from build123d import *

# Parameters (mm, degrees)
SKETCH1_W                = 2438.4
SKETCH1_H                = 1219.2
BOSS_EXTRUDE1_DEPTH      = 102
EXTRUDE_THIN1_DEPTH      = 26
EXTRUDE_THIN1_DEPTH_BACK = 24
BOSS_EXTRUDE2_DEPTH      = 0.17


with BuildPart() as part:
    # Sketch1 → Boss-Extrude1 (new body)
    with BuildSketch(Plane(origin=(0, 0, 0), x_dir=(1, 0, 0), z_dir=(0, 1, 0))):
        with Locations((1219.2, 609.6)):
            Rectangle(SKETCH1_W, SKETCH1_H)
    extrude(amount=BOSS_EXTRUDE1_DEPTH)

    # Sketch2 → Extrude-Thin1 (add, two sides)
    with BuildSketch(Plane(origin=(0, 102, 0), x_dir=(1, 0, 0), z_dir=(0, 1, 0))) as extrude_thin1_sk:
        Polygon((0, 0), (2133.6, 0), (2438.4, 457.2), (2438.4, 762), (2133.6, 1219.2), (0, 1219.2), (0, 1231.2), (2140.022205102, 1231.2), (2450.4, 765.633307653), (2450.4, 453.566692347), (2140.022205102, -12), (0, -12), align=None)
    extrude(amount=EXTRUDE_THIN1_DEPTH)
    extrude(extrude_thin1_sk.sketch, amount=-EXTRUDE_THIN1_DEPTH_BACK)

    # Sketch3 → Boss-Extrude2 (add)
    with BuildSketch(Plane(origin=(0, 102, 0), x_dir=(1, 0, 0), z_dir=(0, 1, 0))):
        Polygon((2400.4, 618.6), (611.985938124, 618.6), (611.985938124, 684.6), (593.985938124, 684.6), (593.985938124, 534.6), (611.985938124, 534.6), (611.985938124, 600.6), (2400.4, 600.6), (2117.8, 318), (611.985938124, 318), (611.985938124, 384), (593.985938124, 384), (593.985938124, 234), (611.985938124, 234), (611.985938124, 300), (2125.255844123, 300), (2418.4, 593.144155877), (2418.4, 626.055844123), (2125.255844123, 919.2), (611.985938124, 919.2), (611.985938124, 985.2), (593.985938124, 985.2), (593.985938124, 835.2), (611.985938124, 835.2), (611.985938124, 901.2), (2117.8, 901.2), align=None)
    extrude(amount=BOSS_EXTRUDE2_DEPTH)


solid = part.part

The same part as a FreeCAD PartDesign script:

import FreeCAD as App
import Part
import Sketcher
from FreeCAD import Vector
Q = App.Units.Quantity

doc = App.newDocument("Part")
params = doc.addObject("Spreadsheet::Sheet", "Params")
for row, (alias, value) in enumerate([
    ("sketch1_width", "2438.4 mm"),
    ("sketch1_height", "1219.2 mm"),
    ("pad1_length", "102 mm"),
    ("sketch2_height", "12 mm"),
    ("sketch2_width", "2133.6 mm"),
    ("sketch2_height2", "304.8 mm"),
    ("pad2_length", "26 mm"),
    ("pad2_length2", "24 mm"),
    ("sketch3_width", "18 mm"),
    ("sketch3_height", "66 mm"),
    ("sketch3_height2", "150 mm"),
    ("pad3_length", "0.17 mm"),
], start=1):
    params.set(f"A{row}", alias)
    params.set(f"B{row}", "=" + value)
    params.setAlias(f"B{row}", alias)

body = doc.addObject("PartDesign::Body", "Body")

# Sketch on XZ plane
sketch1 = doc.addObject("Sketcher::SketchObject", "Sketch")
body.addObject(sketch1)
sketch1.AttachmentSupport = (doc.XZ_Plane, [""])
sketch1.MapMode = "FlatFace"
sketch1.addGeometry([
    Part.LineSegment(Vector(0, -1219, 0), Vector(0, 0, 0)),
    Part.LineSegment(Vector(0, 0, 0), Vector(2438, 0, 0)),
    Part.LineSegment(Vector(2438, 0, 0), Vector(2438, -1219, 0)),
    Part.LineSegment(Vector(2438, -1219, 0), Vector(0, -1219, 0)),
], False)
sketch1.addConstraint([
    Sketcher.Constraint("Coincident", 0, 2, 1, 1),
    Sketcher.Constraint("Coincident", 1, 2, 2, 1),
    Sketcher.Constraint("Coincident", 2, 2, 3, 1),
    Sketcher.Constraint("Coincident", 3, 2, 0, 1),
    Sketcher.Constraint("Vertical", 0),
    Sketcher.Constraint("Horizontal", 1),
    Sketcher.Constraint("Vertical", 2),
    Sketcher.Constraint("Horizontal", 3),
    Sketcher.Constraint("Coincident", 0, 2, -1, 1),
    Sketcher.Constraint("DistanceX", 1, 1, 1, 2, Q("2438.4 mm")),
    Sketcher.Constraint("DistanceY", 0, 1, 0, 2, Q("1219.2 mm")),
])
sketch1.setExpression("Constraints[9]", "Params.sketch1_width")
sketch1.setExpression("Constraints[10]", "Params.sketch1_height")
pad1 = doc.addObject("PartDesign::Pad", "Pad")
body.addObject(pad1)
pad1.Profile = sketch1
pad1.setExpression("Length", "Params.pad1_length")
pad1.Reversed = True

# Sketch on XZ plane
sketch2 = doc.addObject("Sketcher::SketchObject", "Sketch001")
body.addObject(sketch2)
sketch2.AttachmentSupport = (doc.XZ_Plane, [""])
sketch2.MapMode = "FlatFace"
sketch2.AttachmentOffset = App.Placement(Vector(0, 0, -102), App.Rotation())
sketch2.addGeometry([
    Part.LineSegment(Vector(2134, 0, 0), Vector(0, 0, 0)),  # 0
    Part.LineSegment(Vector(0, 0, 0), Vector(0, 12, 0)),  # 1
    Part.LineSegment(Vector(0, 12, 0), Vector(2140, 12, 0)),  # 2
    Part.LineSegment(Vector(2140, 12, 0), Vector(2450, -454, 0)),  # 3
    Part.LineSegment(Vector(2450, -454, 0), Vector(2450, -766, 0)),  # 4
    Part.LineSegment(Vector(2450, -766, 0), Vector(2140, -1231, 0)),  # 5
    Part.LineSegment(Vector(2140, -1231, 0), Vector(0, -1231, 0)),  # 6
    Part.LineSegment(Vector(0, -1231, 0), Vector(0, -1219, 0)),  # 7
    Part.LineSegment(Vector(0, -1219, 0), Vector(2134, -1219, 0)),  # 8
    Part.LineSegment(Vector(2134, -1219, 0), Vector(2438, -762, 0)),  # 9
    Part.LineSegment(Vector(2438, -762, 0), Vector(2438, -457, 0)),  # 10
    Part.LineSegment(Vector(2438, -457, 0), Vector(2134, 0, 0)),  # 11
], False)
sketch2.addConstraint([
    Sketcher.Constraint("Coincident", 0, 2, 1, 1),
    Sketcher.Constraint("Coincident", 1, 2, 2, 1),
    Sketcher.Constraint("Coincident", 2, 2, 3, 1),
    Sketcher.Constraint("Coincident", 3, 2, 4, 1),
    Sketcher.Constraint("Coincident", 4, 2, 5, 1),
    Sketcher.Constraint("Coincident", 5, 2, 6, 1),
    Sketcher.Constraint("Coincident", 6, 2, 7, 1),
    Sketcher.Constraint("Coincident", 7, 2, 8, 1),
    Sketcher.Constraint("Coincident", 8, 2, 9, 1),
    Sketcher.Constraint("Coincident", 9, 2, 10, 1),
    Sketcher.Constraint("Coincident", 10, 2, 11, 1),
    Sketcher.Constraint("Coincident", 11, 2, 0, 1),
    Sketcher.Constraint("Horizontal", 0),
    Sketcher.Constraint("Vertical", 1),
    Sketcher.Constraint("Horizontal", 2),
    Sketcher.Constraint("Vertical", 4),
    Sketcher.Constraint("Horizontal", 6),
    Sketcher.Constraint("Vertical", 7),
    Sketcher.Constraint("Horizontal", 8),
    Sketcher.Constraint("Vertical", 10),
    Sketcher.Constraint("Coincident", 0, 2, -1, 1),
    Sketcher.Constraint("PointOnObject", 6, 2, -2),
    Sketcher.Constraint("Parallel", 5, 9),
    Sketcher.Constraint("Parallel", 3, 11),
    Sketcher.Constraint("Vertical", 2, 2, 5, 2),
    Sketcher.Constraint("Vertical", 8, 2, 11, 2),
    Sketcher.Constraint("Equal", 1, 7),
    Sketcher.Constraint("Equal", 3, 5),
    Sketcher.Constraint("DistanceY", 1, 1, 1, 2, Q("12 mm")),
    Sketcher.Constraint("DistanceX", 0, 2, 0, 1, Q("2133.6 mm")),
    Sketcher.Constraint("DistanceY", 10, 1, 10, 2, Q("304.8 mm")),
    Sketcher.Constraint("DistanceY", 9, 2, -1, 1, Q("762 mm")),
    Sketcher.Constraint("DistanceX", 9, 2, 4, 2, Q("12 mm")),
    Sketcher.Constraint("DistanceX", -1, 1, 3, 2, Q("2450.4 mm")),
    Sketcher.Constraint("DistanceX", 2, 1, 2, 2, Q("2140.022205 mm")),
])
sketch2.setExpression("Constraints[28]", "Params.sketch2_height")
sketch2.setExpression("Constraints[29]", "Params.sketch2_width")
sketch2.setExpression("Constraints[30]", "Params.sketch2_height2")
pad2 = doc.addObject("PartDesign::Pad", "Pad001")
body.addObject(pad2)
pad2.Profile = sketch2
pad2.Type = "TwoLengths"
pad2.setExpression("Length", "Params.pad2_length")
pad2.setExpression("Length2", "Params.pad2_length2")
pad2.Reversed = True

# Sketch on XZ plane
sketch3 = doc.addObject("Sketcher::SketchObject", "Sketch002")
body.addObject(sketch3)
sketch3.AttachmentSupport = (doc.XZ_Plane, [""])
sketch3.MapMode = "FlatFace"
sketch3.AttachmentOffset = App.Placement(Vector(0, 0, -102), App.Rotation())
sketch3.addGeometry([
    Part.LineSegment(Vector(2400, -619, 0), Vector(612, -619, 0)),  # 0
    Part.LineSegment(Vector(612, -619, 0), Vector(612, -685, 0)),  # 1
    Part.LineSegment(Vector(612, -685, 0), Vector(594, -685, 0)),  # 2
    Part.LineSegment(Vector(594, -685, 0), Vector(594, -535, 0)),  # 3
    Part.LineSegment(Vector(594, -535, 0), Vector(612, -535, 0)),  # 4
    Part.LineSegment(Vector(612, -535, 0), Vector(612, -601, 0)),  # 5
    Part.LineSegment(Vector(612, -601, 0), Vector(2400, -601, 0)),  # 6
    Part.LineSegment(Vector(2400, -601, 0), Vector(2118, -318, 0)),  # 7
    Part.LineSegment(Vector(2118, -318, 0), Vector(612, -318, 0)),  # 8
    Part.LineSegment(Vector(612, -318, 0), Vector(612, -384, 0)),  # 9
    Part.LineSegment(Vector(612, -384, 0), Vector(594, -384, 0)),  # 10
    Part.LineSegment(Vector(594, -384, 0), Vector(594, -234, 0)),  # 11
    Part.LineSegment(Vector(594, -234, 0), Vector(612, -234, 0)),  # 12
    Part.LineSegment(Vector(612, -234, 0), Vector(612, -300, 0)),  # 13
    Part.LineSegment(Vector(612, -300, 0), Vector(2125, -300, 0)),  # 14
    Part.LineSegment(Vector(2125, -300, 0), Vector(2418, -593, 0)),  # 15
    Part.LineSegment(Vector(2418, -593, 0), Vector(2418, -626, 0)),  # 16
    Part.LineSegment(Vector(2418, -626, 0), Vector(2125, -919, 0)),  # 17
    Part.LineSegment(Vector(2125, -919, 0), Vector(612, -919, 0)),  # 18
    Part.LineSegment(Vector(612, -919, 0), Vector(612, -985, 0)),  # 19
    Part.LineSegment(Vector(612, -985, 0), Vector(594, -985, 0)),  # 20
    Part.LineSegment(Vector(594, -985, 0), Vector(594, -835, 0)),  # 21
    Part.LineSegment(Vector(594, -835, 0), Vector(612, -835, 0)),  # 22
    Part.LineSegment(Vector(612, -835, 0), Vector(612, -901, 0)),  # 23
    Part.LineSegment(Vector(612, -901, 0), Vector(2118, -901, 0)),  # 24
    Part.LineSegment(Vector(2118, -901, 0), Vector(2400, -619, 0)),  # 25
], False)
sketch3.addConstraint([
    Sketcher.Constraint("Coincident", 0, 2, 1, 1),
    Sketcher.Constraint("Coincident", 1, 2, 2, 1),
    Sketcher.Constraint("Coincident", 2, 2, 3, 1),
    Sketcher.Constraint("Coincident", 3, 2, 4, 1),
    Sketcher.Constraint("Coincident", 4, 2, 5, 1),
    Sketcher.Constraint("Coincident", 5, 2, 6, 1),
    Sketcher.Constraint("Coincident", 6, 2, 7, 1),
    Sketcher.Constraint("Coincident", 7, 2, 8, 1),
    Sketcher.Constraint("Coincident", 8, 2, 9, 1),
    Sketcher.Constraint("Coincident", 9, 2, 10, 1),
    Sketcher.Constraint("Coincident", 10, 2, 11, 1),
    Sketcher.Constraint("Coincident", 11, 2, 12, 1),
    Sketcher.Constraint("Coincident", 12, 2, 13, 1),
    Sketcher.Constraint("Coincident", 13, 2, 14, 1),
    Sketcher.Constraint("Coincident", 14, 2, 15, 1),
    Sketcher.Constraint("Coincident", 15, 2, 16, 1),
    Sketcher.Constraint("Coincident", 16, 2, 17, 1),
    Sketcher.Constraint("Coincident", 17, 2, 18, 1),
    Sketcher.Constraint("Coincident", 18, 2, 19, 1),
    Sketcher.Constraint("Coincident", 19, 2, 20, 1),
    Sketcher.Constraint("Coincident", 20, 2, 21, 1),
    Sketcher.Constraint("Coincident", 21, 2, 22, 1),
    Sketcher.Constraint("Coincident", 22, 2, 23, 1),
    Sketcher.Constraint("Coincident", 23, 2, 24, 1),
    Sketcher.Constraint("Coincident", 24, 2, 25, 1),
    Sketcher.Constraint("Coincident", 25, 2, 0, 1),
    Sketcher.Constraint("Horizontal", 0),
    Sketcher.Constraint("Vertical", 1),
    Sketcher.Constraint("Horizontal", 2),
    Sketcher.Constraint("Vertical", 3),
    Sketcher.Constraint("Horizontal", 4),
    Sketcher.Constraint("Vertical", 5),
    Sketcher.Constraint("Horizontal", 6),
    Sketcher.Constraint("Horizontal", 8),
    Sketcher.Constraint("Vertical", 9),
    Sketcher.Constraint("Horizontal", 10),
    Sketcher.Constraint("Vertical", 11),
    Sketcher.Constraint("Horizontal", 12),
    Sketcher.Constraint("Vertical", 13),
    Sketcher.Constraint("Horizontal", 14),
    Sketcher.Constraint("Vertical", 16),
    Sketcher.Constraint("Horizontal", 18),
    Sketcher.Constraint("Vertical", 19),
    Sketcher.Constraint("Horizontal", 20),
    Sketcher.Constraint("Vertical", 21),
    Sketcher.Constraint("Horizontal", 22),
    Sketcher.Constraint("Vertical", 23),
    Sketcher.Constraint("Horizontal", 24),
    Sketcher.Constraint("Parallel", 7, 15),
    Sketcher.Constraint("Perpendicular", 15, 17),
    Sketcher.Constraint("Parallel", 17, 25),
    Sketcher.Constraint("Vertical", 1, 2, 4, 2),
    Sketcher.Constraint("Vertical", 5, 2, 8, 2),
    Sketcher.Constraint("Vertical", 3, 2, 10, 2),
    Sketcher.Constraint("Vertical", 9, 2, 12, 2),
    Sketcher.Constraint("Vertical", 14, 2, 17, 2),
    Sketcher.Constraint("Vertical", 13, 2, 18, 2),
    Sketcher.Constraint("Vertical", 11, 2, 20, 2),
    Sketcher.Constraint("Vertical", 19, 2, 22, 2),
    Sketcher.Constraint("Vertical", 7, 2, 24, 2),
    Sketcher.Constraint("Vertical", 6, 2, 25, 2),
    Sketcher.Constraint("Equal", 1, 5),
    Sketcher.Constraint("Equal", 5, 9),
    Sketcher.Constraint("Equal", 3, 11),
    Sketcher.Constraint("Equal", 9, 13),
    Sketcher.Constraint("Equal", 13, 19),
    Sketcher.Constraint("Equal", 11, 21),
    Sketcher.Constraint("Equal", 19, 23),
    Sketcher.Constraint("Equal", 15, 17),
    Sketcher.Constraint("DistanceX", 2, 2, 2, 1, Q("18 mm")),
    Sketcher.Constraint("DistanceY", 1, 2, 1, 1, Q("66 mm")),
    Sketcher.Constraint("DistanceY", 3, 1, 3, 2, Q("150 mm")),
    Sketcher.Constraint("DistanceY", 7, 2, -1, 1, Q("318 mm")),
    Sketcher.Constraint("DistanceX", 6, 2, 15, 2, Q("18 mm")),
    Sketcher.Constraint("DistanceY", 0, 2, -1, 1, Q("618.6 mm")),
    Sketcher.Constraint("DistanceX", -1, 1, 6, 2, Q("2400.4 mm")),
    Sketcher.Constraint("DistanceX", 0, 2, 0, 1, Q("1788.414062 mm")),
    Sketcher.Constraint("DistanceY", 16, 2, 16, 1, Q("32.911688 mm")),
])
sketch3.setExpression("Constraints[69]", "Params.sketch3_width")
sketch3.setExpression("Constraints[70]", "Params.sketch3_height")
sketch3.setExpression("Constraints[71]", "Params.sketch3_height2")
pad3 = doc.addObject("PartDesign::Pad", "Pad002")
body.addObject(pad3)
pad3.Profile = sketch3
pad3.setExpression("Length", "Params.pad3_length")
pad3.Reversed = True

doc.recompute()
